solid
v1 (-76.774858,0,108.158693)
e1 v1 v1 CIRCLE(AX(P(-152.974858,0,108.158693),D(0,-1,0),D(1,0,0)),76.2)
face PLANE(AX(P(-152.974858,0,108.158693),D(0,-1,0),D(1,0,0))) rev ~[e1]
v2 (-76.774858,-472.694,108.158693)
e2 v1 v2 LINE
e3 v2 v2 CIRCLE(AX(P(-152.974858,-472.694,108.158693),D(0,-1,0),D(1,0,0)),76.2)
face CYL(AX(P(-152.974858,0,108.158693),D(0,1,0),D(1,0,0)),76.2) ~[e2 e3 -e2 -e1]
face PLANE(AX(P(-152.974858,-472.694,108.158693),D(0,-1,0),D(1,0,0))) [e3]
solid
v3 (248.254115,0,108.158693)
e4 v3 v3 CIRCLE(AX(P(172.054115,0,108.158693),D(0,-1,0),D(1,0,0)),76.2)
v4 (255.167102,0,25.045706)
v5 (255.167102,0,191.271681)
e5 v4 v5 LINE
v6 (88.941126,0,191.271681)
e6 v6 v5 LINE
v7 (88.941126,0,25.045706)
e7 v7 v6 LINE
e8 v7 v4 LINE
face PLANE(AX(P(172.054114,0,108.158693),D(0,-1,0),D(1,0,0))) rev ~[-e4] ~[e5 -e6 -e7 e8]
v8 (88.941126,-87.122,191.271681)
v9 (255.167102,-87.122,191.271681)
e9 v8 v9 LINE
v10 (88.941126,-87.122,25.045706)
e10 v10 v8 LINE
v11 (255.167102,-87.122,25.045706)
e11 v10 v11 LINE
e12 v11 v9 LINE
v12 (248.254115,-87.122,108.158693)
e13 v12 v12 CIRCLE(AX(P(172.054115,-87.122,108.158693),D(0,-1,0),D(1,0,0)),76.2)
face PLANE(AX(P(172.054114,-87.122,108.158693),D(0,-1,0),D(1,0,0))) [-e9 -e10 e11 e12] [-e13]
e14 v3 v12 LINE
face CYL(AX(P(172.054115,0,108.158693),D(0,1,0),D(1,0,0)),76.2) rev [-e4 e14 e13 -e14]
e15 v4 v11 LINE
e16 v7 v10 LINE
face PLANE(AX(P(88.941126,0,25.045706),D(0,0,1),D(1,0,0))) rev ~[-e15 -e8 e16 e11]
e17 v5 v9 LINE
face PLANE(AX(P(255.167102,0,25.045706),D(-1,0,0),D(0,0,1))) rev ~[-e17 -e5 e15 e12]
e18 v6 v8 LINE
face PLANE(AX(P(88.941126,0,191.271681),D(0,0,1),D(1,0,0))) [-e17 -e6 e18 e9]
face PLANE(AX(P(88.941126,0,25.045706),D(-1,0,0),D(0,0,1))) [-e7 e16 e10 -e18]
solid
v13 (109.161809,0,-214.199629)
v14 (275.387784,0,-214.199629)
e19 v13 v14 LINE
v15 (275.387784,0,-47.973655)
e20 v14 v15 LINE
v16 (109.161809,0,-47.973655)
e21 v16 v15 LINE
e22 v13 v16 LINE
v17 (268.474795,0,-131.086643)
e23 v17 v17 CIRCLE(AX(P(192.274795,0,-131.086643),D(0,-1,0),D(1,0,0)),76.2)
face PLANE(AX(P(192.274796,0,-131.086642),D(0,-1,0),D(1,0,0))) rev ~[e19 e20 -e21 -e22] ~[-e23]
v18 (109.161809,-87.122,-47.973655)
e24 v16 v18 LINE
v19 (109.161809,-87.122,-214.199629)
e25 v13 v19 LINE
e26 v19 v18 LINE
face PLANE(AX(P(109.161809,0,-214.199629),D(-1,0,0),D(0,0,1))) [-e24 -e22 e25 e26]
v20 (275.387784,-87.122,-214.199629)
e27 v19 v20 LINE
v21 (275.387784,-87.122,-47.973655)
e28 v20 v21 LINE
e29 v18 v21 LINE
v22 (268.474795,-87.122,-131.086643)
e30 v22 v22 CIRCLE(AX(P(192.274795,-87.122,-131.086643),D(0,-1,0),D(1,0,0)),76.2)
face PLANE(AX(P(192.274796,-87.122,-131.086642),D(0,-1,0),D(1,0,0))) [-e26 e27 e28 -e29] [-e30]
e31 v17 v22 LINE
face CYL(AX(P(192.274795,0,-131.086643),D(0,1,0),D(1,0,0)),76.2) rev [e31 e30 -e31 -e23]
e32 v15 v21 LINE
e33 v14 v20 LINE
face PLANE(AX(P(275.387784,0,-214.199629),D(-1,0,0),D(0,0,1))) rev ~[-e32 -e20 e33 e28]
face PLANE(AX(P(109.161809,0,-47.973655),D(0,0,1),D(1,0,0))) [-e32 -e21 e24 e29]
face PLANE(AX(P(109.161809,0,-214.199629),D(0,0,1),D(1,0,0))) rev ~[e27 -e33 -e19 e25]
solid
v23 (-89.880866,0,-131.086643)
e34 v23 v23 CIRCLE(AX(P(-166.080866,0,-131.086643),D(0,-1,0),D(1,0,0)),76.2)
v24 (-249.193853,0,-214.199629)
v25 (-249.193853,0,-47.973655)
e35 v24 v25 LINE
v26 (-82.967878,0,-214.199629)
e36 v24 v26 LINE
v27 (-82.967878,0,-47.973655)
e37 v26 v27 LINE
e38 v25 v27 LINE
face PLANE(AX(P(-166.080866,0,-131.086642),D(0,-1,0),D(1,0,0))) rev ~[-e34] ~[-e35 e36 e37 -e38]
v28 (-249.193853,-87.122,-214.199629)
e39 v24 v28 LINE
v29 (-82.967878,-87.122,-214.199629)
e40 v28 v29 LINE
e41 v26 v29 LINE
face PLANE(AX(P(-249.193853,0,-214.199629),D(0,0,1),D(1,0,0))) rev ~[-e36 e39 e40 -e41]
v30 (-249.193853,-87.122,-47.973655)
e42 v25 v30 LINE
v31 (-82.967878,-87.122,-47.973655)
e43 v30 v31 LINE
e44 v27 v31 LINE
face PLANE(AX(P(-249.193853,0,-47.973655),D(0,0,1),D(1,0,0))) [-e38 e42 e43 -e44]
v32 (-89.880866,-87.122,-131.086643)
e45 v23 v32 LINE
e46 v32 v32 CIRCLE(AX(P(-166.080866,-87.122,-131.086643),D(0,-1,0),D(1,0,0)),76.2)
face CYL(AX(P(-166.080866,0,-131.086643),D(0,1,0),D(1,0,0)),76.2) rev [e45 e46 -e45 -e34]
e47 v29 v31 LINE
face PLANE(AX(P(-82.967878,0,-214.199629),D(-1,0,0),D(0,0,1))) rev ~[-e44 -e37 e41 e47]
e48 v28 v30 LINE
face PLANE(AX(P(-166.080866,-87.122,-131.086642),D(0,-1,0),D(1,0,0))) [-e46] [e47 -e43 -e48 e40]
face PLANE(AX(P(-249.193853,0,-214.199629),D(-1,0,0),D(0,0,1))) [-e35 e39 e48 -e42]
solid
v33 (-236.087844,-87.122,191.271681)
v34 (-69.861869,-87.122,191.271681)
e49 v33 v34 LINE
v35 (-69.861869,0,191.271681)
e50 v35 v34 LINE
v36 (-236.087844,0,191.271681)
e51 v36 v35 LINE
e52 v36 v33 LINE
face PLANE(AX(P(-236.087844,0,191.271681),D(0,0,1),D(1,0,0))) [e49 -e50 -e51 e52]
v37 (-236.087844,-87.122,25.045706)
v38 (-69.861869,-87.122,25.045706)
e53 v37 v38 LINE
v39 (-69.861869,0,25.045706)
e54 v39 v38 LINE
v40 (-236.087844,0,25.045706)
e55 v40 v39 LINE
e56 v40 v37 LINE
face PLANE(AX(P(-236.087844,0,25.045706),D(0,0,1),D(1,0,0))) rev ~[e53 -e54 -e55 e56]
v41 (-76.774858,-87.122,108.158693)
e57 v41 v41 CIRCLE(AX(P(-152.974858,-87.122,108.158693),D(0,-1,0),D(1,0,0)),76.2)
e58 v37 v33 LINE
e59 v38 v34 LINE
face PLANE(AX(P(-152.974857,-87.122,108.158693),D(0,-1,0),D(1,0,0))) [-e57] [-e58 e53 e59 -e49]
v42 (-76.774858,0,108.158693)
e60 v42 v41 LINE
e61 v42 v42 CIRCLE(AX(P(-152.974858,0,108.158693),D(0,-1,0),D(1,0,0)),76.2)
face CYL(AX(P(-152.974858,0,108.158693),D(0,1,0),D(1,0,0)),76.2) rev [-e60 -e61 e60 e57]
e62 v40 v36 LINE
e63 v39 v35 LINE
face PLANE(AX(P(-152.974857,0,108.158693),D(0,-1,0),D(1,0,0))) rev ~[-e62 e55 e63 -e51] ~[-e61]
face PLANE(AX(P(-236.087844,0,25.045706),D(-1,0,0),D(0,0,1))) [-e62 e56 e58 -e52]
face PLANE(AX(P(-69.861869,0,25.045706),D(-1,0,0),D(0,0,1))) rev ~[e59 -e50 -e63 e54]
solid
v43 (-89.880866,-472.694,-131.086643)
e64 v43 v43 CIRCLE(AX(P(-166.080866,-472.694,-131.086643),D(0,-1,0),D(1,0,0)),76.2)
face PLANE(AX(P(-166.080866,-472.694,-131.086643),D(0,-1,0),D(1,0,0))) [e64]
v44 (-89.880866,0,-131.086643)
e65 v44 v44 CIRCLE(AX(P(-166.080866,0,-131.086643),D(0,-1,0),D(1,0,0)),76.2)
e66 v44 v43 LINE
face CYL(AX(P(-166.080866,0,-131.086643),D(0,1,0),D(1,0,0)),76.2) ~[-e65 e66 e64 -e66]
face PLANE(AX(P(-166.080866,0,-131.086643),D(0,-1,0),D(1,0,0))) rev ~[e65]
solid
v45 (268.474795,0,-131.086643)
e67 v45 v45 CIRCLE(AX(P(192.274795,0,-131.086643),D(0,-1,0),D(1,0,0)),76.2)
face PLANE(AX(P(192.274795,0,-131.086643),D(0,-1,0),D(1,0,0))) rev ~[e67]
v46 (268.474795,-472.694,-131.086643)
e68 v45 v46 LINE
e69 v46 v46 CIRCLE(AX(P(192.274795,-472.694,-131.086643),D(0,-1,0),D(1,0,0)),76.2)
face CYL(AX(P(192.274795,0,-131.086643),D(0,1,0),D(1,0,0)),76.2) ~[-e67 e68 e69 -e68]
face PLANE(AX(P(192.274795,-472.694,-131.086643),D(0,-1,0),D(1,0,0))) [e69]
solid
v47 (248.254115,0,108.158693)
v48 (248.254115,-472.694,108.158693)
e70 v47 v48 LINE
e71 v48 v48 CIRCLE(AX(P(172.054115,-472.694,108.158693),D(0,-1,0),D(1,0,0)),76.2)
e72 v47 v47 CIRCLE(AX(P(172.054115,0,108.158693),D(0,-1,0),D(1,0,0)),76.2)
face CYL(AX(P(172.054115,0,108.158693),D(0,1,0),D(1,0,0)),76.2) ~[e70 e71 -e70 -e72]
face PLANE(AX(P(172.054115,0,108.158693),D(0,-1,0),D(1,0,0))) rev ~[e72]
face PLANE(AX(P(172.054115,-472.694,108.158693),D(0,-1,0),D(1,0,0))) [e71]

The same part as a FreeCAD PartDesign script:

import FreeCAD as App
import Part
import Sketcher
from FreeCAD import Vector
Q = App.Units.Quantity


def add_polygon(sketch, points):
    """Adds a closed chain of lines whose ends are joined by coincident constraints."""
    first, n = sketch.GeometryCount, len(points)
    for a, b in zip(points, points[1:] + points[:1]):
        sketch.addGeometry(Part.LineSegment(App.Vector(*a, 0), App.Vector(*b, 0)), False)
    for i in range(n):
        sketch.addConstraint(Sketcher.Constraint("Coincident", first + i, 2, first + (i + 1) % n, 1))

doc = App.newDocument("Part")
params = doc.addObject("Spreadsheet::Sheet", "Params")
for row, (alias, value) in enumerate([
    ("sketch1_diameter", "6 in"),
    ("pad1_length", "3.43 in"),
    ("sketch2_diameter", "6 in"),
    ("pad2_length", "18.61 in"),
], start=1):
    params.set(f"A{row}", alias)
    params.set(f"B{row}", "=" + value)
    params.setAlias(f"B{row}", alias)

body = doc.addObject("PartDesign::Body", "Body")
body.AllowCompound = True

sketch1 = doc.addObject("Sketcher::SketchObject", "Sketch")
body.addObject(sketch1)
sketch1.AttachmentSupport = (doc.XZ_Plane, [""])
sketch1.MapMode = "FlatFace"
add_polygon(sketch1, [(-236, 191), (-236, 25), (-70, 25), (-70, 191)])
sketch1.addGeometry(Part.Circle(Vector(-153, 108, 0), Vector(0, 0, 1), 76), False)
add_polygon(sketch1, [(-249, -48), (-249, -214), (-83, -214), (-83, -48)])
sketch1.addGeometry(Part.Circle(Vector(-166, -131, 0), Vector(0, 0, 1), 76), False)
add_polygon(sketch1, [(109, -48), (109, -214), (275, -214), (275, -48)])
sketch1.addGeometry(Part.Circle(Vector(192, -131, 0), Vector(0, 0, 1), 76), False)
add_polygon(sketch1, [(89, 191), (89, 25), (255, 25), (255, 191)])
sketch1.addGeometry(Part.Circle(Vector(172, 108, 0), Vector(0, 0, 1), 76), False)
sketch1.addConstraint([
    Sketcher.Constraint("Vertical", 0),
    Sketcher.Constraint("Horizontal", 1),
    Sketcher.Constraint("Vertical", 2),
    Sketcher.Constraint("Horizontal", 3),
    Sketcher.Constraint("Vertical", 5),
    Sketcher.Constraint("Horizontal", 6),
    Sketcher.Constraint("Vertical", 7),
    Sketcher.Constraint("Horizontal", 8),
    Sketcher.Constraint("Vertical", 10),
    Sketcher.Constraint("Horizontal", 11),
    Sketcher.Constraint("Vertical", 12),
    Sketcher.Constraint("Horizontal", 13),
    Sketcher.Constraint("Vertical", 15),
    Sketcher.Constraint("Horizontal", 16),
    Sketcher.Constraint("Vertical", 17),
    Sketcher.Constraint("Horizontal", 18),
    Sketcher.Constraint("Equal", 4, 9),
    Sketcher.Constraint("Equal", 9, 14),
    Sketcher.Constraint("Equal", 14, 19),
    Sketcher.Constraint("Horizontal", 9, 3, 14, 3),
    Sketcher.Constraint("Horizontal", 4, 3, 19, 3),
    Sketcher.Constraint("Horizontal", 6, 2, 10, 2),
    Sketcher.Constraint("Horizontal", 8, 2, 12, 2),
    Sketcher.Constraint("Horizontal", 1, 2, 15, 2),
    Sketcher.Constraint("Horizontal", 3, 2, 17, 2),
    Sketcher.Constraint("Equal", 3, 6),
    Sketcher.Constraint("Equal", 8, 11),
    Sketcher.Constraint("Equal", 13, 16),
    Sketcher.Constraint("Equal", 18, 0),
    Sketcher.Constraint("Equal", 2, 5),
    Sketcher.Constraint("Diameter", 4, Q("6 in")),
    Sketcher.Constraint("DistanceX", -1, 1, 16, 2, Q("255.167102 mm")),
    Sketcher.Constraint("DistanceX", 1, 1, 1, 2, Q("166.225975 mm")),
    Sketcher.Constraint("DistanceX", 4, 3, -1, 1, Q("152.974858 mm")),
    Sketcher.Constraint("DistanceX", 1, 2, -1, 1, Q("69.861869 mm")),
    Sketcher.Constraint("DistanceY", -1, 1, 2, 2, Q("191.271681 mm")),
    Sketcher.Constraint("DistanceY", 5, 2, -1, 1, Q("214.199629 mm")),
    Sketcher.Constraint("DistanceX", 6, 2, -1, 1, Q("82.967878 mm")),
    Sketcher.Constraint("DistanceX", -1, 1, 10, 2, Q("109.161809 mm")),
    Sketcher.Constraint("DistanceX", 9, 3, 14, 3, Q("358.355661 mm")),
    Sketcher.Constraint("DistanceX", 19, 3, 14, 3, Q("20.22068 mm")),
    Sketcher.Constraint("DistanceX", 0, 2, 9, 3, Q("70.006979 mm")),
    Sketcher.Constraint("DistanceY", 9, 3, 0, 2, Q("156.132349 mm")),
    Sketcher.Constraint("DistanceY", -1, 1, 4, 3, Q("108.158693 mm")),
])
sketch1.setExpression("Constraints[46]", "Params.sketch1_diameter")
pad1 = doc.addObject("PartDesign::Pad", "Pad")
body.addObject(pad1)
pad1.Profile = sketch1
pad1.setExpression("Length", "Params.pad1_length")
body2 = doc.addObject("PartDesign::Body", "Body001")
body2.AllowCompound = True

sketch2 = doc.addObject("Sketcher::SketchObject", "Sketch001")
body2.addObject(sketch2)
sketch2.AttachmentSupport = (doc.getObject("XZ_Plane001"), [""])
sketch2.MapMode = "FlatFace"
sketch2.addGeometry([
    Part.Circle(Vector(-166, -131, 0), Vector(0, 0, 1), 76),
    Part.Circle(Vector(-153, 108, 0), Vector(0, 0, 1), 76),
    Part.Circle(Vector(172, 108, 0), Vector(0, 0, 1), 76),
    Part.Circle(Vector(192, -131, 0), Vector(0, 0, 1), 76),
], False)
sketch2.addConstraint([
    Sketcher.Constraint("Equal", 0, 1),
    Sketcher.Constraint("Equal", 1, 2),
    Sketcher.Constraint("Equal", 2, 3),
    Sketcher.Constraint("Horizontal", 1, 3, 2, 3),
    Sketcher.Constraint("Horizontal", 0, 3, 3, 3),
    Sketcher.Constraint("Diameter", 0, Q("6 in")),
    Sketcher.Constraint("DistanceX", 1, 3, -1, 1, Q("152.974858 mm")),
    Sketcher.Constraint("DistanceX", 0, 3, 2, 3, Q("338.134981 mm")),
    Sketcher.Constraint("DistanceX", 2, 3, 3, 3, Q("20.22068 mm")),
    Sketcher.Constraint("DistanceX", 0, 3, -1, 1, Q("166.080866 mm")),
    Sketcher.Constraint("DistanceY", 0, 3, -1, 1, Q("131.086643 mm")),
    Sketcher.Constraint("DistanceY", -1, 1, 1, 3, Q("108.158693 mm")),
])
sketch2.setExpression("Constraints[5]", "Params.sketch2_diameter")
pad2 = doc.addObject("PartDesign::Pad", "Pad001")
body2.addObject(pad2)
pad2.Profile = sketch2
pad2.setExpression("Length", "Params.pad2_length")

doc.recompute()
